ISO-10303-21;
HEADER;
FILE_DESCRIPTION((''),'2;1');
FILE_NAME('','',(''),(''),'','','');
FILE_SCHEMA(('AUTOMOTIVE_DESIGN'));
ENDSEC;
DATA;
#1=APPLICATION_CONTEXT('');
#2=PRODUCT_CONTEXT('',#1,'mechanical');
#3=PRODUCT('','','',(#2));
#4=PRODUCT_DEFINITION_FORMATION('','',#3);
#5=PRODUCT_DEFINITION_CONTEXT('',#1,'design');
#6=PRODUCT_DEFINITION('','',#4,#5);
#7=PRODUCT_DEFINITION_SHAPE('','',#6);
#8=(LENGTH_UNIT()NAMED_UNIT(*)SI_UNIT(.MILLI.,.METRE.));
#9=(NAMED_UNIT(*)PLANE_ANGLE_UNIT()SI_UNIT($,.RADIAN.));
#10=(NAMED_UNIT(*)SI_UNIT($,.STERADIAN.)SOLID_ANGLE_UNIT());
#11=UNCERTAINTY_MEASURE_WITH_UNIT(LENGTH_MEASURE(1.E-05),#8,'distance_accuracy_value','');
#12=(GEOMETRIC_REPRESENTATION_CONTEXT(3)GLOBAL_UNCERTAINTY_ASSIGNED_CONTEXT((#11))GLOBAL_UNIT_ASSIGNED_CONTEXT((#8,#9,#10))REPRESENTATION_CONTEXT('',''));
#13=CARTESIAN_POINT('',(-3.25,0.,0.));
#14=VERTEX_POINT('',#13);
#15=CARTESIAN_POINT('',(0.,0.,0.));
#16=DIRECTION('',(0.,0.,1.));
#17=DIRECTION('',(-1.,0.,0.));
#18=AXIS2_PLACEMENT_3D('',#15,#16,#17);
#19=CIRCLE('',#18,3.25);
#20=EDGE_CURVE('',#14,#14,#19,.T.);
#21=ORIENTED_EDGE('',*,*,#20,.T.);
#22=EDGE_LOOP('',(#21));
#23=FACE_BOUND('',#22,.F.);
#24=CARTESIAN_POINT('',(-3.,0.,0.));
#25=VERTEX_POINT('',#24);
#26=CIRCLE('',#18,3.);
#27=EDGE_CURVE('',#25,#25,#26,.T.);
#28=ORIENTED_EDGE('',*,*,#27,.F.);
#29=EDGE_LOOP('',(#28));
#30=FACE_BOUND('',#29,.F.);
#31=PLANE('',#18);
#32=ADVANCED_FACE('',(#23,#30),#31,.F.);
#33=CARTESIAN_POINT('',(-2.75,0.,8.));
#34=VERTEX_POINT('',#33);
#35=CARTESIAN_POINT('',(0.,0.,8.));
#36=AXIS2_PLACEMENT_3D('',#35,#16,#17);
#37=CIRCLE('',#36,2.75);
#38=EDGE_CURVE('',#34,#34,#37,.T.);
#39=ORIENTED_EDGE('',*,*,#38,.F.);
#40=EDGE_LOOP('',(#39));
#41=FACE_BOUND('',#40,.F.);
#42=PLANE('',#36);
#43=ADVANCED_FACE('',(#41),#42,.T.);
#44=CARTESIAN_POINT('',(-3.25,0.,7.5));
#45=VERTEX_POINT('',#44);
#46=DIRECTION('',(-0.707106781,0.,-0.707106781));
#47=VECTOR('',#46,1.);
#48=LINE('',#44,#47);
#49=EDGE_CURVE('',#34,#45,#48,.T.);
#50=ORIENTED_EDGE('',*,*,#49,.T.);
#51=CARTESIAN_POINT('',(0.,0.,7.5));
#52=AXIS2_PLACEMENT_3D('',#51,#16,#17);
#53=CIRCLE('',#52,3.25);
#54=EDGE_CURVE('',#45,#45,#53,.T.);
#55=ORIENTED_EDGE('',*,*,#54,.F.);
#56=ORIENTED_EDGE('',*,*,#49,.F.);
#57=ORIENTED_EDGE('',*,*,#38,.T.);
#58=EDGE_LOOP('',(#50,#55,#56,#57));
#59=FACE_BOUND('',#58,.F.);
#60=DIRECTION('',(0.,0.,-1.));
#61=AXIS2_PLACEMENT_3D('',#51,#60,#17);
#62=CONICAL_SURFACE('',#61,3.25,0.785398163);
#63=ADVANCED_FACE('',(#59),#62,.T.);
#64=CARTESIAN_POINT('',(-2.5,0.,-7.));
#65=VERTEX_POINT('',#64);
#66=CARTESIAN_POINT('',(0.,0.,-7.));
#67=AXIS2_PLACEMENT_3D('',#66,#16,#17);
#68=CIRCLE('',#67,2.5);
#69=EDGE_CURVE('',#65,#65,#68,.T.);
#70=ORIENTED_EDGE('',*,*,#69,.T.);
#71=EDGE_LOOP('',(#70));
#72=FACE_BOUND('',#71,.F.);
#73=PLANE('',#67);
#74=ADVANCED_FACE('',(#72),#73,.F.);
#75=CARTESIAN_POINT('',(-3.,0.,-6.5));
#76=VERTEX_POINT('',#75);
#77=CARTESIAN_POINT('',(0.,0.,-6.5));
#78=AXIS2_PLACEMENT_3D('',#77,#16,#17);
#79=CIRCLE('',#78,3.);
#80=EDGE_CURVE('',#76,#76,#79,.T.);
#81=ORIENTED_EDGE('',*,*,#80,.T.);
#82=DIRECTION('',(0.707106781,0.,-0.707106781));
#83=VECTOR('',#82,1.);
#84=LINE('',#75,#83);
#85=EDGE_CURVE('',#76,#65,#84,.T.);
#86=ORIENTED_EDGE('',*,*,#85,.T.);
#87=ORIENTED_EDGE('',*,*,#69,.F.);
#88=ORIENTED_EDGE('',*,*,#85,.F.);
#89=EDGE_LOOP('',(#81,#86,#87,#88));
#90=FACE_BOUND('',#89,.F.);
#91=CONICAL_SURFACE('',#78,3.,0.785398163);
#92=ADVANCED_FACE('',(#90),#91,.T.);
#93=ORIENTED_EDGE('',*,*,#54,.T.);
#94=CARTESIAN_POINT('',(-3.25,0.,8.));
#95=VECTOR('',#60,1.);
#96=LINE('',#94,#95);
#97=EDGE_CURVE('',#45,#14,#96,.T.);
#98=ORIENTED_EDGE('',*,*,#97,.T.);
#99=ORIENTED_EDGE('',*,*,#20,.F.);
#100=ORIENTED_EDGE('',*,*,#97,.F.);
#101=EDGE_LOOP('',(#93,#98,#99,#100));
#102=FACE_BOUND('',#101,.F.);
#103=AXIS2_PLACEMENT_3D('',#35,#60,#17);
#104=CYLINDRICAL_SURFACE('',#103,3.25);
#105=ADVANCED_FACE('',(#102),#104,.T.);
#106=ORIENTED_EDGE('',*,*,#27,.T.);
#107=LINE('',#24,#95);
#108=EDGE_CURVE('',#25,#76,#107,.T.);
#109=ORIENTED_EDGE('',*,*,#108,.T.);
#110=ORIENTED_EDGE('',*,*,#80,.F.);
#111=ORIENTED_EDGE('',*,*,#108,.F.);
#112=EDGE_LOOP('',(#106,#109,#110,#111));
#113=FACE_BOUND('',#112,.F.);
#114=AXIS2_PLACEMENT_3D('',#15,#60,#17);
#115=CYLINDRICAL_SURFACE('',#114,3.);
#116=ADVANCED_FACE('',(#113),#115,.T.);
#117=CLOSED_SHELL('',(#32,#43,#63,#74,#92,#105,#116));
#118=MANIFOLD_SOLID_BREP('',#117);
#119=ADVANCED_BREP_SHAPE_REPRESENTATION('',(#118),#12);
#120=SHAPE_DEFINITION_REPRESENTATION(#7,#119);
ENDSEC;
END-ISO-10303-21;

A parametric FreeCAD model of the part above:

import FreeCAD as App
import Part
import Sketcher

V = App.Vector


def edges_at(feature, points):
    """Names of the edges that pass closest to the given points."""
    edges = feature.Shape.Edges
    near = lambda p: min(range(len(edges)), key=lambda i: edges[i].distToShape(Part.Vertex(*p))[0])
    return sorted({f"Edge{near(p) + 1}" for p in points})

doc = App.newDocument("Part")
body = doc.addObject("PartDesign::Body", "Body")

# Sketch on XZ plane
sketch1 = doc.addObject("Sketcher::SketchObject", "Sketch")
body.addObject(sketch1)
sketch1.AttachmentSupport = (doc.XZ_Plane, [""])
sketch1.MapMode = "FlatFace"
sketch1.addGeometry([
    Part.LineSegment(V(0, -7, 0), V(0, 8, 0)),  # 0
    Part.LineSegment(V(0, 8, 0), V(-3.25, 8, 0)),  # 1
    Part.LineSegment(V(-3.25, 8, 0), V(-3.25, 0, 0)),  # 2
    Part.LineSegment(V(-3.25, 0, 0), V(-3, 0, 0)),  # 3
    Part.LineSegment(V(-3, 0, 0), V(-3, -7, 0)),  # 4
    Part.LineSegment(V(-3, -7, 0), V(0, -7, 0)),  # 5
], False)
sketch1.addConstraint([
    Sketcher.Constraint("Coincident", 0, 2, 1, 1),
    Sketcher.Constraint("Coincident", 1, 2, 2, 1),
    Sketcher.Constraint("Coincident", 2, 2, 3, 1),
    Sketcher.Constraint("Coincident", 3, 2, 4, 1),
    Sketcher.Constraint("Coincident", 4, 2, 5, 1),
    Sketcher.Constraint("Coincident", 5, 2, 0, 1),
    Sketcher.Constraint("Vertical", 0),
    Sketcher.Constraint("Horizontal", 1),
    Sketcher.Constraint("Vertical", 2),
    Sketcher.Constraint("Horizontal", 3),
    Sketcher.Constraint("Vertical", 4),
    Sketcher.Constraint("Horizontal", 5),
    Sketcher.Constraint("PointOnObject", 0, 2, -2),
    Sketcher.Constraint("PointOnObject", 2, 2, -1),
    Sketcher.Constraint("DistanceX", 5, 1, 5, 2, 3.0),
    Sketcher.Constraint("DistanceY", 0, 1, 0, 2, 15.0),
    Sketcher.Constraint("DistanceY", 2, 2, 2, 1, 8.0),
    Sketcher.Constraint("DistanceX", 1, 2, 1, 1, 3.25),
])
revolution = doc.addObject("PartDesign::Revolution", "Revolution")
body.addObject(revolution)
revolution.Profile = sketch1
revolution.ReferenceAxis = (sketch1, ["V_Axis"])
revolution.Angle = 360
doc.recompute()

chamfer = doc.addObject("PartDesign::Chamfer", "Chamfer")
body.addObject(chamfer)
chamfer.Base = (revolution, edges_at(revolution, [(3.25, 0, 8)]))
chamfer.Size = 0.5
doc.recompute()

chamfer2 = doc.addObject("PartDesign::Chamfer", "Chamfer001")
body.addObject(chamfer2)
chamfer2.Base = (chamfer, edges_at(chamfer, [(3, 0, -7)]))
chamfer2.Size = 0.5

doc.recompute()
